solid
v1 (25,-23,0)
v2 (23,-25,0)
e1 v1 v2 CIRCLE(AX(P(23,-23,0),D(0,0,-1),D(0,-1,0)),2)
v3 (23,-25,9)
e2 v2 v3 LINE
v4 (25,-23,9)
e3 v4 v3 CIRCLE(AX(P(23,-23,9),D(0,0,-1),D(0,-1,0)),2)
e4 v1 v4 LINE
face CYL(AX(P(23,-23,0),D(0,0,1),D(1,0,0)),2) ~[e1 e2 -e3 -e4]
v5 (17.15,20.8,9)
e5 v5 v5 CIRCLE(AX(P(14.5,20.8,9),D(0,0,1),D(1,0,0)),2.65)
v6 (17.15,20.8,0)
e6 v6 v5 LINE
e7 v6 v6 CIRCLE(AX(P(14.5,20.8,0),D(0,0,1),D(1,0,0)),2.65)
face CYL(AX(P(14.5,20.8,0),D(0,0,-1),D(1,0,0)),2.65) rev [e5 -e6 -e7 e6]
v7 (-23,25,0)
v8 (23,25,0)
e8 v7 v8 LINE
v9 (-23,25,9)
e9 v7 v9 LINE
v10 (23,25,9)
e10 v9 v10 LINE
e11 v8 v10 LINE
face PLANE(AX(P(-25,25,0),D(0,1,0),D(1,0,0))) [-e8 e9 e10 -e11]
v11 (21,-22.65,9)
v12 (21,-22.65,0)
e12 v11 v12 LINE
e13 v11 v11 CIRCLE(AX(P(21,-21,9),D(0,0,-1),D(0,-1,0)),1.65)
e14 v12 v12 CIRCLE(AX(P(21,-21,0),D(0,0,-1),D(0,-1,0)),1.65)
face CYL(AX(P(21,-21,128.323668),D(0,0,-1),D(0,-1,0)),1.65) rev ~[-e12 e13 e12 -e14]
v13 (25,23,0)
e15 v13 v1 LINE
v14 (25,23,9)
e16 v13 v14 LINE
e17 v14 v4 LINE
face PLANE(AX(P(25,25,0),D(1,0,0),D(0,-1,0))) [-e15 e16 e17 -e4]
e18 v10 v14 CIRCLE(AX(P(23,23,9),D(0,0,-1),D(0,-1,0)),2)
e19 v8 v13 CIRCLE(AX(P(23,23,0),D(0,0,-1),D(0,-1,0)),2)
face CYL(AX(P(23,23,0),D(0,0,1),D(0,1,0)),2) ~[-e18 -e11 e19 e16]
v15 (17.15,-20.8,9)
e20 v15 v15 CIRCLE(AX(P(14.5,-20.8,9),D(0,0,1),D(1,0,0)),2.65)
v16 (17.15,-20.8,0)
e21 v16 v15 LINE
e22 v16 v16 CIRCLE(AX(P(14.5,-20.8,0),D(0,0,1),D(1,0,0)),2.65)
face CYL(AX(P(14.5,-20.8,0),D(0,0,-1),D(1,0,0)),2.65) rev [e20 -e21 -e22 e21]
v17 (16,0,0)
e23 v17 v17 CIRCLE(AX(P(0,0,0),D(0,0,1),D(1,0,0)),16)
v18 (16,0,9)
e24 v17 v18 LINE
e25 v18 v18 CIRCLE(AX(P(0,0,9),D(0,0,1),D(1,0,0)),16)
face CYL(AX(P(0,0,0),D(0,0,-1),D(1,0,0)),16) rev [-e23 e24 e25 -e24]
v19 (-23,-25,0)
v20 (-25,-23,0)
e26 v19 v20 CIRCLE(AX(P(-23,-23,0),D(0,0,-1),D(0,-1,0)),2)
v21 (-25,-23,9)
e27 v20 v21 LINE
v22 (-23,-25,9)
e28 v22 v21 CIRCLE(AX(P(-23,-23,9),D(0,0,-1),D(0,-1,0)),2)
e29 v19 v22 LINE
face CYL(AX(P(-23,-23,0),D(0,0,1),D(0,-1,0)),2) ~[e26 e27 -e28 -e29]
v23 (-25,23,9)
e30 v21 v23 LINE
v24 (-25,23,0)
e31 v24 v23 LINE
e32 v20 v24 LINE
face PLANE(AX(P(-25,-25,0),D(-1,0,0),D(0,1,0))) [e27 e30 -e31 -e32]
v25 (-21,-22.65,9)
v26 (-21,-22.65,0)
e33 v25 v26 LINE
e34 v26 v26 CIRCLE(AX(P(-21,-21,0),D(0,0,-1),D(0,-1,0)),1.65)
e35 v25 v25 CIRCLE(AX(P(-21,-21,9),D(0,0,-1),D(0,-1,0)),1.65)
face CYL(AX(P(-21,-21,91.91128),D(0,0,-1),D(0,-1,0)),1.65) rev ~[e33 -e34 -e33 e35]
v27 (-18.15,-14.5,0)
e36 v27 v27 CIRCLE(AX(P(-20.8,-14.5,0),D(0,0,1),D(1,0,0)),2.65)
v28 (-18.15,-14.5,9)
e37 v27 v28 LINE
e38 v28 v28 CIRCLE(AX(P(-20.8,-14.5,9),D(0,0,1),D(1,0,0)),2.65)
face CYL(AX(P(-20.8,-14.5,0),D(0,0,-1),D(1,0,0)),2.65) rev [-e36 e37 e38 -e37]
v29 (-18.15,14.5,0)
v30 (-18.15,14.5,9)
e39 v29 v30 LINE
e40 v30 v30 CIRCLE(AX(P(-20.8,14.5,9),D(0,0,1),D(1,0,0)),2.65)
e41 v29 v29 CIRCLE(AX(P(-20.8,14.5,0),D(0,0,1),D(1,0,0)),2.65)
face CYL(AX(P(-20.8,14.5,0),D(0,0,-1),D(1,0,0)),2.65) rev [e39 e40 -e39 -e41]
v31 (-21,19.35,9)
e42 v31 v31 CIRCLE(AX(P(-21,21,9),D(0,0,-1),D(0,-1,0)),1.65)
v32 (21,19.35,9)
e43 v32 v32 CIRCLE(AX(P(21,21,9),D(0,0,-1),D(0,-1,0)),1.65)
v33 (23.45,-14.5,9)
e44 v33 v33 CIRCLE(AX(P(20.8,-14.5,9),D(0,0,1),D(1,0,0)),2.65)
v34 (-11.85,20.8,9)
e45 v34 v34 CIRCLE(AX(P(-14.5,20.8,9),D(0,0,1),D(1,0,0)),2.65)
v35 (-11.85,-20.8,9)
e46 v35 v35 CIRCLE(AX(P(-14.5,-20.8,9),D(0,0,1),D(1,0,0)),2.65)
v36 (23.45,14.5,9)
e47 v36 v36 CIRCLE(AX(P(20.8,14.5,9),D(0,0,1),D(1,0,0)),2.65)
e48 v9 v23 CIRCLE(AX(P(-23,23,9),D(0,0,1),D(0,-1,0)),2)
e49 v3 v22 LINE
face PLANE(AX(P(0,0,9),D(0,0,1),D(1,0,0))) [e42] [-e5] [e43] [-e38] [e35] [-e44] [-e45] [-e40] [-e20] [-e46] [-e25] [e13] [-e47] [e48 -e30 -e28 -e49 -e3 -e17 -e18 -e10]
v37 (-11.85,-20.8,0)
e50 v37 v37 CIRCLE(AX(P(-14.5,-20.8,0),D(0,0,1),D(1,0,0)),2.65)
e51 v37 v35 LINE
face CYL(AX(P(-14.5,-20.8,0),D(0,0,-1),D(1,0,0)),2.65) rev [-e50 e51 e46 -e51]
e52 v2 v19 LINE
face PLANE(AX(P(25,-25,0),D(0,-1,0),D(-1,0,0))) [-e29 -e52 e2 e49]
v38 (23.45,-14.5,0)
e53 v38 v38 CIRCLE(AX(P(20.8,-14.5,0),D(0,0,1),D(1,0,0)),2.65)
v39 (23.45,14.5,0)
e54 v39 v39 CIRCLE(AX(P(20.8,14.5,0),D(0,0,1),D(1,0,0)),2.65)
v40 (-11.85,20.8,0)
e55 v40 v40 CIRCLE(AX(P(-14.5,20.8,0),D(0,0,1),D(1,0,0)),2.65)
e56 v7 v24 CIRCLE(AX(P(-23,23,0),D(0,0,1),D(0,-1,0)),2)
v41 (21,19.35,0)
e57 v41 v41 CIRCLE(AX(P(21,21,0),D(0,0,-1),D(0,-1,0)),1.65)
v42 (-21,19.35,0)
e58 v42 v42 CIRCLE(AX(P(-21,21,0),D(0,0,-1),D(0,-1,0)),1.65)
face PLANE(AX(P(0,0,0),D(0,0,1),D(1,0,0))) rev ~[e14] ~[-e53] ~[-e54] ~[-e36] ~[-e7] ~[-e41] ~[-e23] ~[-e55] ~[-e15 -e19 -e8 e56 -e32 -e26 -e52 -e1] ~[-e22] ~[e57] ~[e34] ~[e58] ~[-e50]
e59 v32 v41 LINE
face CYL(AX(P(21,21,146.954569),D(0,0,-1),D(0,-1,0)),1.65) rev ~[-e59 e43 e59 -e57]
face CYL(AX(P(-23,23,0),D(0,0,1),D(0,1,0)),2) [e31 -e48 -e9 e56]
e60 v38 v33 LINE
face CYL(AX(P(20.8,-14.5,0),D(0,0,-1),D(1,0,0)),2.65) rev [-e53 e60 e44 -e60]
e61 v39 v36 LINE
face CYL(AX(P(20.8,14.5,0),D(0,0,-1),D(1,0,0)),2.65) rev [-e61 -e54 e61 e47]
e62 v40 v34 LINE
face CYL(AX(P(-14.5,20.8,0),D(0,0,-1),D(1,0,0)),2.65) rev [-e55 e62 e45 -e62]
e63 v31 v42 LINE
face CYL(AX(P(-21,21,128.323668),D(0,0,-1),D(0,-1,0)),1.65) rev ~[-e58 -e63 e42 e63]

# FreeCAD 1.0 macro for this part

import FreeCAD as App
import Part
import Sketcher
Q = App.Units.Quantity


def edges_at(feature, points):
    """Names of the edges that pass closest to the given points."""
    edges = feature.Shape.Edges
    near = lambda p: min(range(len(edges)), key=lambda i: edges[i].distToShape(Part.Vertex(*p))[0])
    return sorted({f"Edge{near(p) + 1}" for p in points})

doc = App.newDocument("Part")
body = doc.addObject("PartDesign::Body", "Body")

# Sketch on XY plane
sketch1 = body.newObject("Sketcher::SketchObject", "Sketch")
sketch1.AttachmentSupport = (doc.getObject("XY_Plane"), [""])
sketch1.MapMode = "FlatFace"
sketch1.addGeometry(Part.LineSegment(App.Vector(25, 25, 0), App.Vector(-25, 25, 0)), False)
sketch1.addGeometry(Part.LineSegment(App.Vector(-25, 25, 0), App.Vector(-25, -25, 0)), False)
sketch1.addGeometry(Part.LineSegment(App.Vector(-25, -25, 0), App.Vector(25, -25, 0)), False)
sketch1.addGeometry(Part.LineSegment(App.Vector(25, -25, 0), App.Vector(25, 25, 0)), False)
sketch1.addGeometry(Part.Circle(App.Vector(-14.5, -20.8, 0), App.Vector(0, 0, 1), 2.6), False)
sketch1.addGeometry(Part.Circle(App.Vector(-20.8, -14.5, 0), App.Vector(0, 0, 1), 2.6), False)
sketch1.addGeometry(Part.Circle(App.Vector(14.5, -20.8, 0), App.Vector(0, 0, 1), 2.6), False)
sketch1.addGeometry(Part.Circle(App.Vector(20.8, -14.5, 0), App.Vector(0, 0, 1), 2.6), False)
sketch1.addGeometry(Part.Circle(App.Vector(-20.8, 14.5, 0), App.Vector(0, 0, 1), 2.6), False)
sketch1.addGeometry(Part.Circle(App.Vector(-14.5, 20.8, 0), App.Vector(0, 0, 1), 2.6), False)
sketch1.addGeometry(Part.Circle(App.Vector(0, 0, 0), App.Vector(0, 0, 1), 16), False)
sketch1.addGeometry(Part.Circle(App.Vector(20.8, 14.5, 0), App.Vector(0, 0, 1), 2.6), False)
sketch1.addGeometry(Part.Circle(App.Vector(14.5, 20.8, 0), App.Vector(0, 0, 1), 2.6), False)
sketch1.addConstraint(Sketcher.Constraint("Coincident", 0, 2, 1, 1))
sketch1.addConstraint(Sketcher.Constraint("Coincident", 1, 2, 2, 1))
sketch1.addConstraint(Sketcher.Constraint("Coincident", 2, 2, 3, 1))
sketch1.addConstraint(Sketcher.Constraint("Coincident", 3, 2, 0, 1))
sketch1.addConstraint(Sketcher.Constraint("Horizontal", 0))
sketch1.addConstraint(Sketcher.Constraint("Vertical", 1))
sketch1.addConstraint(Sketcher.Constraint("Horizontal", 2))
sketch1.addConstraint(Sketcher.Constraint("Vertical", 3))
sketch1.addConstraint(Sketcher.Constraint("Coincident", 10, 3, -1, 1))
sketch1.addConstraint(Sketcher.Constraint("Equal", 4, 5))
sketch1.addConstraint(Sketcher.Constraint("Equal", 5, 6))
sketch1.addConstraint(Sketcher.Constraint("Equal", 6, 7))
sketch1.addConstraint(Sketcher.Constraint("Equal", 7, 8))
sketch1.addConstraint(Sketcher.Constraint("Equal", 8, 9))
sketch1.addConstraint(Sketcher.Constraint("Equal", 9, 11))
sketch1.addConstraint(Sketcher.Constraint("Equal", 11, 12))
sketch1.addConstraint(Sketcher.Constraint("Symmetric", 7, 3, 8, 3, -1, 1))
sketch1.addConstraint(Sketcher.Constraint("Symmetric", 6, 3, 9, 3, -1, 1))
sketch1.addConstraint(Sketcher.Constraint("Symmetric", 5, 3, 11, 3, -1, 1))
sketch1.addConstraint(Sketcher.Constraint("Symmetric", 4, 3, 12, 3, -1, 1))
sketch1.addConstraint(Sketcher.Constraint("Symmetric", 0, 2, 2, 2, -1, 1))
sketch1.addConstraint(Sketcher.Constraint("Symmetric", 4, 3, 6, 3, -2))
sketch1.addConstraint(Sketcher.Constraint("Symmetric", 5, 3, 7, 3, -2))
sketch1.addConstraint(Sketcher.Constraint("Equal", 2, 1))
sketch1.addConstraint(Sketcher.Constraint("Diameter", 10, Q("32 mm")))
sketch1.addConstraint(Sketcher.Constraint("Diameter", 4, Q("5.3 mm")))
sketch1.addConstraint(Sketcher.Constraint("DistanceX", 0, 2, 0, 1, Q("50 mm")))
sketch1.addConstraint(Sketcher.Constraint("DistanceX", 4, 3, 6, 3, Q("29 mm")))
sketch1.addConstraint(Sketcher.Constraint("DistanceY", 5, 3, 8, 3, Q("29 mm")))
sketch1.addConstraint(Sketcher.Constraint("DistanceX", 5, 3, 7, 3, Q("41.6 mm")))
sketch1.addConstraint(Sketcher.Constraint("DistanceY", 4, 3, 9, 3, Q("41.6 mm")))
pad1 = body.newObject("PartDesign::Pad", "Pad")
pad1.Profile = sketch1
pad1.Length = 9
doc.recompute()

fillet = body.newObject("PartDesign::Fillet", "Fillet")
fillet.Base = (pad1, edges_at(pad1, [
    (-25, 25, 4.5),
    (25, 25, 4.5),
    (-25, -25, 4.5),
    (25, -25, 4.5),
]))
fillet.Radius = 2

# Sketch on XY plane
sketch2 = body.newObject("Sketcher::SketchObject", "Sketch001")
sketch2.AttachmentSupport = (doc.getObject("XY_Plane"), [""])
sketch2.MapMode = "FlatFace"
sketch2.AttachmentOffset = App.Placement(App.Vector(0, 0, 9), App.Rotation())
sketch2.addGeometry(Part.Circle(App.Vector(-21, 21, 0), App.Vector(0, 0, 1), 1.6), False)
sketch2.addGeometry(Part.Circle(App.Vector(21, 21, 0), App.Vector(0, 0, 1), 1.6), False)
sketch2.addGeometry(Part.Circle(App.Vector(21, -21, 0), App.Vector(0, 0, 1), 1.6), False)
sketch2.addGeometry(Part.Circle(App.Vector(-21, -21, 0), App.Vector(0, 0, 1), 1.6), False)
sketch2.addConstraint(Sketcher.Constraint("Equal", 0, 1))
sketch2.addConstraint(Sketcher.Constraint("Equal", 1, 2))
sketch2.addConstraint(Sketcher.Constraint("Equal", 2, 3))
sketch2.addConstraint(Sketcher.Constraint("Symmetric", 0, 3, 2, 3, -1, 1))
sketch2.addConstraint(Sketcher.Constraint("Symmetric", 1, 3, 3, 3, -1, 1))
sketch2.addConstraint(Sketcher.Constraint("Symmetric", 0, 3, 1, 3, -2))
sketch2.addConstraint(Sketcher.Constraint("Diameter", 0, Q("3.3 mm")))
sketch2.addConstraint(Sketcher.Constraint("DistanceX", 0, 3, -1, 1, Q("21 mm")))
sketch2.addConstraint(Sketcher.Constraint("DistanceY", -1, 1, 0, 3, Q("21 mm")))
doc.recompute()
hole = body.newObject("PartDesign::Hole", "Hole")
hole.Profile = sketch2
hole.ThreadType = "None"
hole.Diameter = 3.3
hole.DepthType = "ThroughAll"

doc.recompute()
